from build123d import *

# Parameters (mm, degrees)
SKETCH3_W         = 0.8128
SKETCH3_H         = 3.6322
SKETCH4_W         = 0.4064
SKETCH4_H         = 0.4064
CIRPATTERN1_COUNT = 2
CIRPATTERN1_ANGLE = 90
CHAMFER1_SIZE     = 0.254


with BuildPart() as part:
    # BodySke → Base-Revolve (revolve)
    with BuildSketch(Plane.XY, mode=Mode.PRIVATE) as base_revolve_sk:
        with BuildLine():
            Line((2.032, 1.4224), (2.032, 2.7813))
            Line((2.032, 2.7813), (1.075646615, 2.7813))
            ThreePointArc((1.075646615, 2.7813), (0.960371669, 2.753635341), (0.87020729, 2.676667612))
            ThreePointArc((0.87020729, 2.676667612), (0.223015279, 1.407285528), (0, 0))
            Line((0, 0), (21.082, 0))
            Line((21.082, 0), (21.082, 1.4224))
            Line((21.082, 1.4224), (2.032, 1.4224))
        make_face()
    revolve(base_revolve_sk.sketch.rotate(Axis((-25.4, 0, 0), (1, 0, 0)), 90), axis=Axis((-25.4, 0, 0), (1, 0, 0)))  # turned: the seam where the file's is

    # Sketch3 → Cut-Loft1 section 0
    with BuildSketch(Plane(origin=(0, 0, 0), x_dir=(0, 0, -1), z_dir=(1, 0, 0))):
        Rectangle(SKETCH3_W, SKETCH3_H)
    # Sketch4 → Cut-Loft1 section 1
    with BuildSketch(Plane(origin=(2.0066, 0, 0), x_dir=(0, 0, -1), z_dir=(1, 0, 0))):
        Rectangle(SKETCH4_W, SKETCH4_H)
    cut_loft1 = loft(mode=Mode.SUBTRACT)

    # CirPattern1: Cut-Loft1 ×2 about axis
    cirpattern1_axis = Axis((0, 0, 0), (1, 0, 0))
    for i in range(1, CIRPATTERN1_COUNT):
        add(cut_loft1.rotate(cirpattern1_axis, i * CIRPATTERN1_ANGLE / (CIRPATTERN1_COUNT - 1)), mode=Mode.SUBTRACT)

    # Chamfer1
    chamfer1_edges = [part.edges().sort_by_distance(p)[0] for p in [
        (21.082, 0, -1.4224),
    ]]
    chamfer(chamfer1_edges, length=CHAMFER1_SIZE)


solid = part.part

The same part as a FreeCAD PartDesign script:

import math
import FreeCAD as App
import Part
import Sketcher

V = App.Vector
Q = App.Units.Quantity


def edges_at(feature, points):
    """Names of the edges that pass closest to the given points."""
    edges = feature.Shape.Edges
    near = lambda p: min(range(len(edges)), key=lambda i: edges[i].distToShape(Part.Vertex(*p))[0])
    return sorted({f"Edge{near(p) + 1}" for p in points})

doc = App.newDocument("Part")
body = doc.addObject("PartDesign::Body", "Body")

# Sketch on XY plane
sketch1 = body.newObject("Sketcher::SketchObject", "Sketch")
sketch1.AttachmentSupport = (doc.getObject("XY_Plane"), [""])
sketch1.MapMode = "FlatFace"
sketch1.addGeometry([
    Part.LineSegment(V(2.03, 1.42, 0), V(2.03, 2.78, 0)),  # 0
    Part.LineSegment(V(2.03, 2.78, 0), V(1.08, 2.78, 0)),  # 1
    Part.ArcOfCircle(Part.Circle(V(1.08, 2.53, 0), V(0, 0, 1), 0.25), math.radians(90), math.radians(144)),  # 2
    Part.ArcOfCircle(Part.Circle(V(4.55, 0, 0), V(0, 0, 1), 4.55), math.radians(144), math.radians(180)),  # 3
    Part.LineSegment(V(0, 0, 0), V(21.08, 0, 0)),  # 4
    Part.LineSegment(V(21.08, 0, 0), V(21.08, 1.42, 0)),  # 5
    Part.LineSegment(V(21.08, 1.42, 0), V(2.03, 1.42, 0)),  # 6
], False)
sketch1.addConstraint([
    Sketcher.Constraint("Coincident", 0, 2, 1, 1),
    Sketcher.Constraint("Tangent", 1, 2, 2, 1),
    Sketcher.Constraint("Tangent", 2, 2, 3, 1),
    Sketcher.Constraint("Coincident", 3, 2, 4, 1),
    Sketcher.Constraint("Coincident", 4, 2, 5, 1),
    Sketcher.Constraint("Coincident", 5, 2, 6, 1),
    Sketcher.Constraint("Coincident", 6, 2, 0, 1),
    Sketcher.Constraint("Vertical", 0),
    Sketcher.Constraint("Horizontal", 1),
    Sketcher.Constraint("Horizontal", 4),
    Sketcher.Constraint("Vertical", 5),
    Sketcher.Constraint("Horizontal", 6),
    Sketcher.Constraint("Coincident", 3, 2, -1, 1),
    Sketcher.Constraint("PointOnObject", 3, 3, -1),
    Sketcher.Constraint("Radius", 2, Q("0.01 in")),
    Sketcher.Constraint("DistanceX", 4, 1, 4, 2, Q("0.83 in")),
    Sketcher.Constraint("DistanceX", 6, 2, 6, 1, Q("0.75 in")),
    Sketcher.Constraint("Radius", 3, Q("0.1792 in")),
    Sketcher.Constraint("DistanceY", 5, 1, 5, 2, Q("0.056 in")),
    Sketcher.Constraint("DistanceY", 0, 1, 0, 2, Q("0.0535 in")),
])
revolution = body.newObject("PartDesign::Revolution", "Revolution")
revolution.Profile = sketch1
revolution.ReferenceAxis = (sketch1, ["H_Axis"])
revolution.Angle = 360

# Sketch on YZ plane
sketch2 = body.newObject("Sketcher::SketchObject", "Sketch001")
sketch2.AttachmentSupport = (doc.getObject("YZ_Plane"), [""])
sketch2.MapMode = "FlatFace"
sketch2.addGeometry([
    Part.LineSegment(V(1.8, 0.4, 0), V(-1.8, 0.4, 0)),
    Part.LineSegment(V(-1.8, 0.4, 0), V(-1.8, -0.4, 0)),
    Part.LineSegment(V(-1.8, -0.4, 0), V(1.8, -0.4, 0)),
    Part.LineSegment(V(1.8, -0.4, 0), V(1.8, 0.4, 0)),
], False)
sketch2.addConstraint([
    Sketcher.Constraint("Coincident", 0, 2, 1, 1),
    Sketcher.Constraint("Coincident", 1, 2, 2, 1),
    Sketcher.Constraint("Coincident", 2, 2, 3, 1),
    Sketcher.Constraint("Coincident", 3, 2, 0, 1),
    Sketcher.Constraint("Horizontal", 0),
    Sketcher.Constraint("Vertical", 1),
    Sketcher.Constraint("Horizontal", 2),
    Sketcher.Constraint("Vertical", 3),
    Sketcher.Constraint("Symmetric", 0, 2, 2, 2, -1, 1),
    Sketcher.Constraint("DistanceX", 0, 2, 0, 1, Q("0.143 in")),
    Sketcher.Constraint("DistanceY", 1, 2, 1, 1, Q("0.032 in")),
])

# Sketch on YZ plane
sketch3 = body.newObject("Sketcher::SketchObject", "Sketch002")
sketch3.AttachmentSupport = (doc.getObject("YZ_Plane"), [""])
sketch3.MapMode = "FlatFace"
sketch3.AttachmentOffset = App.Placement(V(0, 0, 0.079 * 25.4), App.Rotation())
sketch3.addGeometry([
    Part.LineSegment(V(0.2, 0.2, 0), V(-0.2, 0.2, 0)),
    Part.LineSegment(V(-0.2, 0.2, 0), V(-0.2, -0.2, 0)),
    Part.LineSegment(V(-0.2, -0.2, 0), V(0.2, -0.2, 0)),
    Part.LineSegment(V(0.2, -0.2, 0), V(0.2, 0.2, 0)),
], False)
sketch3.addConstraint([
    Sketcher.Constraint("Coincident", 0, 2, 1, 1),
    Sketcher.Constraint("Coincident", 1, 2, 2, 1),
    Sketcher.Constraint("Coincident", 2, 2, 3, 1),
    Sketcher.Constraint("Coincident", 3, 2, 0, 1),
    Sketcher.Constraint("Horizontal", 0),
    Sketcher.Constraint("Vertical", 1),
    Sketcher.Constraint("Horizontal", 2),
    Sketcher.Constraint("Vertical", 3),
    Sketcher.Constraint("Symmetric", 0, 2, 2, 2, -1, 1),
    Sketcher.Constraint("Equal", 2, 1),
    Sketcher.Constraint("DistanceX", 0, 2, 0, 1, Q("0.016 in")),
])

subtractiveloft = body.newObject("PartDesign::SubtractiveLoft", "SubtractiveLoft")
subtractiveloft.Profile = sketch2
subtractiveloft.Sections = [sketch3]
doc.recompute()

polarpattern = body.newObject("PartDesign::PolarPattern", "PolarPattern")
polarpattern.Originals = [subtractiveloft]
polarpattern.Axis = (doc.getObject("X_Axis"), [""])
polarpattern.Angle = 90
polarpattern.Occurrences = 2
body.Tip = polarpattern
doc.recompute()

chamfer = body.newObject("PartDesign::Chamfer", "Chamfer")
chamfer.Base = (polarpattern, edges_at(polarpattern, [(21.082, 0, -1.422)]))
chamfer.Size = Q("0.01 in")

doc.recompute()
